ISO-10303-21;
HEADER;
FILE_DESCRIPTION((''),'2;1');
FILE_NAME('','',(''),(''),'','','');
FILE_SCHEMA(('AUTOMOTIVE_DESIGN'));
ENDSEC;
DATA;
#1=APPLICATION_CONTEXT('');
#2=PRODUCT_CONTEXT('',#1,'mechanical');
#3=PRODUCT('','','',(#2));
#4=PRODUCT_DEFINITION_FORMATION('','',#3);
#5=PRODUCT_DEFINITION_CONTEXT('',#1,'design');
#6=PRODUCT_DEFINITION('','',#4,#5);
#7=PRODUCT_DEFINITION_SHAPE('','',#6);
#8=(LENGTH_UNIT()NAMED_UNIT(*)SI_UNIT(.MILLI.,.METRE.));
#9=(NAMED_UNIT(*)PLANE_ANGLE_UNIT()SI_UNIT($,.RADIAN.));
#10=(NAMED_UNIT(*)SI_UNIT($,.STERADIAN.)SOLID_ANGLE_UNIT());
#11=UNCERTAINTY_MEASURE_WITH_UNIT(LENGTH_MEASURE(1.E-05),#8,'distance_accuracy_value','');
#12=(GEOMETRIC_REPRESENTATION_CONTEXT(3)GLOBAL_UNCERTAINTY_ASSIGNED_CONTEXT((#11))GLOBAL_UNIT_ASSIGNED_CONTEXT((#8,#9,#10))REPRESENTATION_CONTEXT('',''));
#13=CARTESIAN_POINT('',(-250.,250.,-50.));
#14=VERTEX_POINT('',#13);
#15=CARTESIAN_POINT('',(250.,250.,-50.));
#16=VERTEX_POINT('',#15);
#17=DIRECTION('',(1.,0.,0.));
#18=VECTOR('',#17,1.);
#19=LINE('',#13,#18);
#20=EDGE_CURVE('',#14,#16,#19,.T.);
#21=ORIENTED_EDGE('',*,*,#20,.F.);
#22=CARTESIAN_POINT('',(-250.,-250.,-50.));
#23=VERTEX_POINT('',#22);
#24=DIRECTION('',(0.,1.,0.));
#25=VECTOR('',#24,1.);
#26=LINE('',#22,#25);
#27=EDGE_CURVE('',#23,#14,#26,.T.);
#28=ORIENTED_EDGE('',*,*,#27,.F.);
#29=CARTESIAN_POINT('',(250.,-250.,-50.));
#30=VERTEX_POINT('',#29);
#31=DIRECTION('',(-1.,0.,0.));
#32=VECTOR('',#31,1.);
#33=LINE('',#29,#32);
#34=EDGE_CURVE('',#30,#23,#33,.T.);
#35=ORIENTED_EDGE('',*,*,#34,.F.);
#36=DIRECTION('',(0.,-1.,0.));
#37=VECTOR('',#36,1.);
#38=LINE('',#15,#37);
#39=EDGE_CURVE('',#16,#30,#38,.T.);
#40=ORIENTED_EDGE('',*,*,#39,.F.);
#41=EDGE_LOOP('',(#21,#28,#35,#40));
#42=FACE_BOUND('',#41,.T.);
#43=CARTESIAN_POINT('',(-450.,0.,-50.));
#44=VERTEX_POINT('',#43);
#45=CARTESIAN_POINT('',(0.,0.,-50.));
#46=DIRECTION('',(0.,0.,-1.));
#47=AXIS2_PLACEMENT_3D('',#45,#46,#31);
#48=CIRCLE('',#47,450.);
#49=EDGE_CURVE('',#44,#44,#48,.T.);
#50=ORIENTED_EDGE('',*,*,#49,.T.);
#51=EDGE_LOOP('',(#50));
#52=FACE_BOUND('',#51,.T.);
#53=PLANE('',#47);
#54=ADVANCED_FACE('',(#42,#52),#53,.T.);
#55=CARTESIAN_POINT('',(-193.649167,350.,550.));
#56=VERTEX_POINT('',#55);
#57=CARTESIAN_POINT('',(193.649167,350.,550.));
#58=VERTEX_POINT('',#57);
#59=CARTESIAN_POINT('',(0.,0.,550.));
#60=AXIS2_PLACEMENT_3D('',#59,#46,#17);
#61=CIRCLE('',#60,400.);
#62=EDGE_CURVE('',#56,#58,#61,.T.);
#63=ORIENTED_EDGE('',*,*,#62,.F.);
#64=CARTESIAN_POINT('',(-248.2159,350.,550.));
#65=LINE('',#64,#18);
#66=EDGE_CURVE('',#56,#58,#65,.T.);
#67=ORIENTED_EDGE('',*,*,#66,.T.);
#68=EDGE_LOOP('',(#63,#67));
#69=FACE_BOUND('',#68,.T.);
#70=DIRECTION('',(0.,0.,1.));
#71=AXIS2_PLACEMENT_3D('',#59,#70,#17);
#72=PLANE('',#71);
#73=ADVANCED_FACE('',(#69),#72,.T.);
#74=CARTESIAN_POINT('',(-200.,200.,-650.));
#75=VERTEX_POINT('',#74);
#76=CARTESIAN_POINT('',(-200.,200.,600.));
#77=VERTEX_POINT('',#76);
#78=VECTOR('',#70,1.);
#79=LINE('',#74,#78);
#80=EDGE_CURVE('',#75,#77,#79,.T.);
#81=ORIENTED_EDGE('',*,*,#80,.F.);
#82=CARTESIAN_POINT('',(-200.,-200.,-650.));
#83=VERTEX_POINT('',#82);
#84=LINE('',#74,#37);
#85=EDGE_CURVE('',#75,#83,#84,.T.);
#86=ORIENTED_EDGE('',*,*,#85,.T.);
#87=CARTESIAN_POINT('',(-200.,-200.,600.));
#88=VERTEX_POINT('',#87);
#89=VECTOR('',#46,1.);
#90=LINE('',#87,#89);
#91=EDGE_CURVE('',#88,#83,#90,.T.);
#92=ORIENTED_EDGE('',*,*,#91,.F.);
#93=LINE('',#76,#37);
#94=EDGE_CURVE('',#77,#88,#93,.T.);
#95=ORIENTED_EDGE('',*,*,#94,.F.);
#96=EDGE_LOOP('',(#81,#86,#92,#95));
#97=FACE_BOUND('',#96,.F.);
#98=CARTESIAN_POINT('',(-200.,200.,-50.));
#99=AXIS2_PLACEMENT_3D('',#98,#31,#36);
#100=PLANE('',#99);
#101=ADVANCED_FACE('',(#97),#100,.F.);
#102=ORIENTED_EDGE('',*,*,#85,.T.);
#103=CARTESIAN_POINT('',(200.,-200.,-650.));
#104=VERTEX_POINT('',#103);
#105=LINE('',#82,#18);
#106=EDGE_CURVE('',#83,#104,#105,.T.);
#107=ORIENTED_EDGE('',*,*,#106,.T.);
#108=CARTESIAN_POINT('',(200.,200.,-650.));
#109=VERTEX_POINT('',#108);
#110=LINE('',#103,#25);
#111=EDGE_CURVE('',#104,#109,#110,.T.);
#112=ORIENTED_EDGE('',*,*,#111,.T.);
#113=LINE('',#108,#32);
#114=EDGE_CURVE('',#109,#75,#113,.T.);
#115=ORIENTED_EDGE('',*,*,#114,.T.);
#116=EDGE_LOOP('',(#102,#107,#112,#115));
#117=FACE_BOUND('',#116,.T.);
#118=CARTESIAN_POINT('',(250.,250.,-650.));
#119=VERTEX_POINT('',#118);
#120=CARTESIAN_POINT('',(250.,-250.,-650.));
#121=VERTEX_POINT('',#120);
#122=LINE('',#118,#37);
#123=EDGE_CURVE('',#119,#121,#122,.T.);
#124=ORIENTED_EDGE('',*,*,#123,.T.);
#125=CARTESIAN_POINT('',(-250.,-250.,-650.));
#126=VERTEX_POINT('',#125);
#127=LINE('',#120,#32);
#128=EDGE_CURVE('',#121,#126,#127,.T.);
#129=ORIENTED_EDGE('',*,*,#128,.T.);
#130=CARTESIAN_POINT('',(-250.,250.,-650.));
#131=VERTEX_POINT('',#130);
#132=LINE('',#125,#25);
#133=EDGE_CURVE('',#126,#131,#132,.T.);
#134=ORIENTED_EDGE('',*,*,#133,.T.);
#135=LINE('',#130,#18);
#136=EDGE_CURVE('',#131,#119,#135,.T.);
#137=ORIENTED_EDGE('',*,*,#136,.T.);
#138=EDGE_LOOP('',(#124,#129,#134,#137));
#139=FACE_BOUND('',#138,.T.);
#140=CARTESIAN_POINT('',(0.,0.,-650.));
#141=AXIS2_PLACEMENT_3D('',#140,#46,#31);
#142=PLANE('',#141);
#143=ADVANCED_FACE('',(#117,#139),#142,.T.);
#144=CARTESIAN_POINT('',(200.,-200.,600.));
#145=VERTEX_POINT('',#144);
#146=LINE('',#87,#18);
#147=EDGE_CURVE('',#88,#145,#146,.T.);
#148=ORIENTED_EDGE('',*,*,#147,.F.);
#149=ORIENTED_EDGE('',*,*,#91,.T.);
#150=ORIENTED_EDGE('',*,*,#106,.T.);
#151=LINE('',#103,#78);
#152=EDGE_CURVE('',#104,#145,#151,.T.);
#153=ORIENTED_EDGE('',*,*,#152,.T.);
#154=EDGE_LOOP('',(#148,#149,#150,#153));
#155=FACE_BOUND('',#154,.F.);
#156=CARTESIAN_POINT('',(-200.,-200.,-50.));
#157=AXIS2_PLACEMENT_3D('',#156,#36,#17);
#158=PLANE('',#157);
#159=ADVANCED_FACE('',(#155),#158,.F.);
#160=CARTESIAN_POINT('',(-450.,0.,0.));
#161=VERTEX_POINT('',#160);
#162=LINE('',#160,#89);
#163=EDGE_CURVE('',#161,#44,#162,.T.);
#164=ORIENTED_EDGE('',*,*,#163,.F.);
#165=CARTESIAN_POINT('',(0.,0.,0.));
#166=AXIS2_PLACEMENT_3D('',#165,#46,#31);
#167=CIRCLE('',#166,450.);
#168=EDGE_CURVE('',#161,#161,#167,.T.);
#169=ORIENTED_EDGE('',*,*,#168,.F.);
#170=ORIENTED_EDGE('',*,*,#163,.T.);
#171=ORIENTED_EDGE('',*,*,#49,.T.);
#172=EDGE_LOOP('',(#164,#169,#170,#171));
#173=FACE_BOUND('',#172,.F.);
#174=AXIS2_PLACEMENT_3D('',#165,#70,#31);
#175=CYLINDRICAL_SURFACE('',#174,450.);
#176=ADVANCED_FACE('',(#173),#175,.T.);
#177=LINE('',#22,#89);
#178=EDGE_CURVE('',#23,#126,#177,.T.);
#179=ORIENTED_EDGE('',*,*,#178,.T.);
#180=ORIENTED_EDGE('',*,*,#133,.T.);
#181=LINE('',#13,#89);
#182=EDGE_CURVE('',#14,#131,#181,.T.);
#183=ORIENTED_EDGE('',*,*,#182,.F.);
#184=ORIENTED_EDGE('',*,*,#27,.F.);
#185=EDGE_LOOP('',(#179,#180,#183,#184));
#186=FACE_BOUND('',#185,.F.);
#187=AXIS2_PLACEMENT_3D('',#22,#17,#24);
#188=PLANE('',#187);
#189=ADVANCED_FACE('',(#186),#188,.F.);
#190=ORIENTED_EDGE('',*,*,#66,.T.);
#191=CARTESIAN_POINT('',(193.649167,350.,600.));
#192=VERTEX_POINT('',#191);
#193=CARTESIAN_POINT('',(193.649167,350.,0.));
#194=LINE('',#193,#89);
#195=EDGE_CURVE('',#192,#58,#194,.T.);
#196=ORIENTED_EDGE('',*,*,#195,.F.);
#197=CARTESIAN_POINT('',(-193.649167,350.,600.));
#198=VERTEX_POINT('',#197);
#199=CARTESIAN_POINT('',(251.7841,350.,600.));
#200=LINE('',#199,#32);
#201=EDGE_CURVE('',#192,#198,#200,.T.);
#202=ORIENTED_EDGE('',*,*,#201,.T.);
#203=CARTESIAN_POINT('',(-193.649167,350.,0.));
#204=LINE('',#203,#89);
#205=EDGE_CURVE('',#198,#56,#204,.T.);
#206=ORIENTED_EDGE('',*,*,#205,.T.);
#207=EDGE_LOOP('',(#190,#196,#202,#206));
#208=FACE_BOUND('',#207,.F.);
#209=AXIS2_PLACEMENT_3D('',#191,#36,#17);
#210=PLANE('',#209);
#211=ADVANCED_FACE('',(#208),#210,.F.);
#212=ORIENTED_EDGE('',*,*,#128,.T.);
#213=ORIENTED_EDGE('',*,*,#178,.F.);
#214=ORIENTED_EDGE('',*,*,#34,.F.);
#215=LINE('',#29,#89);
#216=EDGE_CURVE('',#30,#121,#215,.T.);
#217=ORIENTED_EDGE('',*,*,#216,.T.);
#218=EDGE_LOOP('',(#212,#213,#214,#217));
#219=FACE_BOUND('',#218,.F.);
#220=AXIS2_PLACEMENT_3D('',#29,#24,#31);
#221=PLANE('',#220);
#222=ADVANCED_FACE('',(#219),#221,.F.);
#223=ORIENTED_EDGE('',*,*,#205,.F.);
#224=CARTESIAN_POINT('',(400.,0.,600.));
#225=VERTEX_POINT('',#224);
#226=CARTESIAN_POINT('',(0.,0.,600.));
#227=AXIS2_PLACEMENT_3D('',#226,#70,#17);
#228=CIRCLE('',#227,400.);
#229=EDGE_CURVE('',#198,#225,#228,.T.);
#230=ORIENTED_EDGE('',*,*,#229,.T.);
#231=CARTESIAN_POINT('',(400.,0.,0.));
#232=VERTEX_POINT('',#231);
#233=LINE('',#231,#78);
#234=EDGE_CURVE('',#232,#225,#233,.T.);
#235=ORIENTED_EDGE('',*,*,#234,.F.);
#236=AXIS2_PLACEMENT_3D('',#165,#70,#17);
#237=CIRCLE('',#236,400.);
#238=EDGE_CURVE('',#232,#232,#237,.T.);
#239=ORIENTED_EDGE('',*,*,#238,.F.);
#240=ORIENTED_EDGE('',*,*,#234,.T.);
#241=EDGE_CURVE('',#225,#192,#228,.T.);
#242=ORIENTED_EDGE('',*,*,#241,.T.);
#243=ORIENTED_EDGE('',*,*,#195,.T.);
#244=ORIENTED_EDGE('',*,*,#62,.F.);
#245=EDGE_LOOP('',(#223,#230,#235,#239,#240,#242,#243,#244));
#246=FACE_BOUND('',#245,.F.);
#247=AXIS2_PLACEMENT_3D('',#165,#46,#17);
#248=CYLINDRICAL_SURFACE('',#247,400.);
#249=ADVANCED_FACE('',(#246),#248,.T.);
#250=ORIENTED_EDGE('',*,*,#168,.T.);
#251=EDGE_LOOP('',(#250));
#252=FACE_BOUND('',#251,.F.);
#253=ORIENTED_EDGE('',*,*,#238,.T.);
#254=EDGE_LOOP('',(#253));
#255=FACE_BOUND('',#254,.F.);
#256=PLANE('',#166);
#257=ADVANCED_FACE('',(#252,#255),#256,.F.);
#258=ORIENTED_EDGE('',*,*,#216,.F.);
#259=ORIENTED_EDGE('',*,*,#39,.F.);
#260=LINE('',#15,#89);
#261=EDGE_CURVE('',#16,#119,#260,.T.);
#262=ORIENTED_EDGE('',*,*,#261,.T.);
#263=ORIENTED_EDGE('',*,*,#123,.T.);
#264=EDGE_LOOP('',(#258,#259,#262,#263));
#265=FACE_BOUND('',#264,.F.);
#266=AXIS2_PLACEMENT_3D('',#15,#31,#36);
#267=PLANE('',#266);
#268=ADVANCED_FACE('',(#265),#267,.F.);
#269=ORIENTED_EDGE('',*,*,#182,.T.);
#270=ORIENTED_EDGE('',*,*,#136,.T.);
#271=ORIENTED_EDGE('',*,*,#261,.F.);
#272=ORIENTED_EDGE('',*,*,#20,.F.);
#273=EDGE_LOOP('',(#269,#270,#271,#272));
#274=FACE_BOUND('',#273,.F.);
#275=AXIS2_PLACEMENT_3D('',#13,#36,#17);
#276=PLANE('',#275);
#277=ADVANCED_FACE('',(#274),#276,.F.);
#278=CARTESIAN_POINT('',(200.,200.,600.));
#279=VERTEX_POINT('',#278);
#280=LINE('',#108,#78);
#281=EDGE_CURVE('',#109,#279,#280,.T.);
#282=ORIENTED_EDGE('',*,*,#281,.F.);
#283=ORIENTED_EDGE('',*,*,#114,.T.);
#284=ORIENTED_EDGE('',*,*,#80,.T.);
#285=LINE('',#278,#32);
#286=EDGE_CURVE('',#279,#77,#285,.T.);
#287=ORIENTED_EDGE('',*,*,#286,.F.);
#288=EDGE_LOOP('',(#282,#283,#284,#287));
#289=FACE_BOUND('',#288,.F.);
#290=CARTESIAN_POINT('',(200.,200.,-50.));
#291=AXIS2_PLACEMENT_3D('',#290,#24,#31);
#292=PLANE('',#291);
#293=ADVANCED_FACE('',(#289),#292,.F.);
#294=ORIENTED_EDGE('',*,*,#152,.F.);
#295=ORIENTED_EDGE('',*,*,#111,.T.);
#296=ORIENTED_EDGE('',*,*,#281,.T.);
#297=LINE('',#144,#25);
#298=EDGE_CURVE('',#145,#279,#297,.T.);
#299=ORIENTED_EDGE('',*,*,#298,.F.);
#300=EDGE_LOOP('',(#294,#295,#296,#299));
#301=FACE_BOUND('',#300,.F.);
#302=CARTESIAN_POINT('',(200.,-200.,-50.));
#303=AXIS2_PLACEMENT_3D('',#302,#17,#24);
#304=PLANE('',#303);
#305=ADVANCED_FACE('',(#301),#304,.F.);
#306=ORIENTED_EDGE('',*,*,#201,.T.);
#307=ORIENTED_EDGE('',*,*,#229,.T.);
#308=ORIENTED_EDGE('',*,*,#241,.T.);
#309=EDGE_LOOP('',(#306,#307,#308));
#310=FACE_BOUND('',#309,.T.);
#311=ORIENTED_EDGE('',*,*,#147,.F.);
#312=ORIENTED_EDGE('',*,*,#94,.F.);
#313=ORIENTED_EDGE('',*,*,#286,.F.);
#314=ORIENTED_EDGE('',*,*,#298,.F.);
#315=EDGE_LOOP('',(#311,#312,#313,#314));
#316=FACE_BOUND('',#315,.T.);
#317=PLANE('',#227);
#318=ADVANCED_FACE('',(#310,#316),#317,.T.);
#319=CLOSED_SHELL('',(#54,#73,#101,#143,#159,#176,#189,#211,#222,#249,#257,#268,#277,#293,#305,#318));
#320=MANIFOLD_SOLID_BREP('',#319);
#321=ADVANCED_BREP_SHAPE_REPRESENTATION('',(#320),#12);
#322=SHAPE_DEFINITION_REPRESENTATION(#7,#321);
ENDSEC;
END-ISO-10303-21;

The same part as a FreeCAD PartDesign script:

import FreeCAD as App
import Part
import Sketcher
Q = App.Units.Quantity

doc = App.newDocument("Part")
body = doc.addObject("PartDesign::Body", "Body")

# Sketch on XY plane
sketch1 = body.newObject("Sketcher::SketchObject", "Sketch")
sketch1.AttachmentSupport = (doc.getObject("XY_Plane"), [""])
sketch1.MapMode = "FlatFace"
sketch1.addGeometry([
    Part.Circle(App.Vector(0, 0, 0), App.Vector(0, 0, 1), 400),  # 0
    Part.LineSegment(App.Vector(200, -200, 0), App.Vector(-200, -200, 0)),  # 1
    Part.LineSegment(App.Vector(-200, -200, 0), App.Vector(-200, 200, 0)),  # 2
    Part.LineSegment(App.Vector(-200, 200, 0), App.Vector(200, 200, 0)),  # 3
    Part.LineSegment(App.Vector(200, 200, 0), App.Vector(200, -200, 0)),  # 4
], False)
sketch1.addConstraint([
    Sketcher.Constraint("Coincident", 1, 2, 2, 1),
    Sketcher.Constraint("Coincident", 2, 2, 3, 1),
    Sketcher.Constraint("Coincident", 3, 2, 4, 1),
    Sketcher.Constraint("Coincident", 4, 2, 1, 1),
    Sketcher.Constraint("Horizontal", 1),
    Sketcher.Constraint("Vertical", 2),
    Sketcher.Constraint("Horizontal", 3),
    Sketcher.Constraint("Vertical", 4),
    Sketcher.Constraint("Coincident", 0, 3, -1, 1),
    Sketcher.Constraint("Symmetric", 1, 2, 3, 2, -1, 1),
    Sketcher.Constraint("Equal", 3, 2),
    Sketcher.Constraint("Diameter", 0, Q("800 mm")),
    Sketcher.Constraint("DistanceX", 1, 2, 1, 1, Q("400 mm")),
])
pad1 = body.newObject("PartDesign::Pad", "Pad")
pad1.Profile = sketch1
pad1.Length = 600

# Sketch on XY plane
sketch2 = body.newObject("Sketcher::SketchObject", "Sketch001")
sketch2.AttachmentSupport = (doc.getObject("XY_Plane"), [""])
sketch2.MapMode = "FlatFace"
sketch2.addGeometry([
    Part.Circle(App.Vector(0, 0, 0), App.Vector(0, 0, 1), 450),  # 0
    Part.LineSegment(App.Vector(200, 200, 0), App.Vector(-200, 200, 0)),  # 1
    Part.LineSegment(App.Vector(-200, 200, 0), App.Vector(-200, -200, 0)),  # 2
    Part.LineSegment(App.Vector(-200, -200, 0), App.Vector(200, -200, 0)),  # 3
    Part.LineSegment(App.Vector(200, -200, 0), App.Vector(200, 200, 0)),  # 4
], False)
sketch2.addConstraint([
    Sketcher.Constraint("Coincident", 1, 2, 2, 1),
    Sketcher.Constraint("Coincident", 2, 2, 3, 1),
    Sketcher.Constraint("Coincident", 3, 2, 4, 1),
    Sketcher.Constraint("Coincident", 4, 2, 1, 1),
    Sketcher.Constraint("Horizontal", 1),
    Sketcher.Constraint("Vertical", 2),
    Sketcher.Constraint("Horizontal", 3),
    Sketcher.Constraint("Vertical", 4),
    Sketcher.Constraint("Coincident", 0, 3, -1, 1),
    Sketcher.Constraint("Symmetric", 1, 2, 3, 2, -1, 1),
    Sketcher.Constraint("Equal", 3, 2),
    Sketcher.Constraint("Diameter", 0, Q("900 mm")),
    Sketcher.Constraint("DistanceX", 1, 2, 1, 1, Q("400 mm")),
])
pad2 = body.newObject("PartDesign::Pad", "Pad001")
pad2.Profile = sketch2
pad2.Length = 50
pad2.Reversed = True

# Sketch on XY plane
sketch3 = body.newObject("Sketcher::SketchObject", "Sketch002")
sketch3.AttachmentSupport = (doc.getObject("XY_Plane"), [""])
sketch3.MapMode = "FlatFace"
sketch3.AttachmentOffset = App.Placement(App.Vector(0, 0, 600), App.Rotation())
sketch3.addGeometry([
    Part.LineSegment(App.Vector(251.7841, 350, 0), App.Vector(251.7841, 450, 0)),
    Part.LineSegment(App.Vector(251.7841, 450, 0), App.Vector(-248.2159, 450, 0)),
    Part.LineSegment(App.Vector(-248.2159, 450, 0), App.Vector(-248.2159, 350, 0)),
    Part.LineSegment(App.Vector(-248.2159, 350, 0), App.Vector(251.7841, 350, 0)),
], False)
sketch3.addConstraint([
    Sketcher.Constraint("Coincident", 0, 2, 1, 1),
    Sketcher.Constraint("Coincident", 1, 2, 2, 1),
    Sketcher.Constraint("Coincident", 2, 2, 3, 1),
    Sketcher.Constraint("Coincident", 3, 2, 0, 1),
    Sketcher.Constraint("Vertical", 0),
    Sketcher.Constraint("Horizontal", 1),
    Sketcher.Constraint("Vertical", 2),
    Sketcher.Constraint("Horizontal", 3),
    Sketcher.Constraint("DistanceX", 1, 2, 1, 1, Q("500 mm")),
    Sketcher.Constraint("DistanceY", 0, 1, 0, 2, Q("100 mm")),
    Sketcher.Constraint("DistanceY", -1, 1, 2, 2, Q("350 mm")),
    Sketcher.Constraint("DistanceX", -1, 1, 0, 2, Q("251.784 mm")),
])
pocket1 = body.newObject("PartDesign::Pocket", "Pocket")
pocket1.Profile = sketch3
pocket1.Length = 50

# Sketch on XY plane
sketch4 = body.newObject("Sketcher::SketchObject", "Sketch003")
sketch4.AttachmentSupport = (doc.getObject("XY_Plane"), [""])
sketch4.MapMode = "FlatFace"
sketch4.AttachmentOffset = App.Placement(App.Vector(0, 0, -50), App.Rotation())
sketch4.addGeometry([
    Part.LineSegment(App.Vector(250, 250, 0), App.Vector(250, -250, 0)),  # 0
    Part.LineSegment(App.Vector(250, -250, 0), App.Vector(-250, -250, 0)),  # 1
    Part.LineSegment(App.Vector(-250, -250, 0), App.Vector(-250, 250, 0)),  # 2
    Part.LineSegment(App.Vector(-250, 250, 0), App.Vector(250, 250, 0)),  # 3
    Part.LineSegment(App.Vector(-200, 200, 0), App.Vector(-200, -200, 0)),  # 4
    Part.LineSegment(App.Vector(-200, -200, 0), App.Vector(200, -200, 0)),  # 5
    Part.LineSegment(App.Vector(200, -200, 0), App.Vector(200, 200, 0)),  # 6
    Part.LineSegment(App.Vector(200, 200, 0), App.Vector(-200, 200, 0)),  # 7
], False)
sketch4.addConstraint([
    Sketcher.Constraint("Coincident", 0, 2, 1, 1),
    Sketcher.Constraint("Coincident", 1, 2, 2, 1),
    Sketcher.Constraint("Coincident", 2, 2, 3, 1),
    Sketcher.Constraint("Coincident", 3, 2, 0, 1),
    Sketcher.Constraint("Coincident", 4, 2, 5, 1),
    Sketcher.Constraint("Coincident", 5, 2, 6, 1),
    Sketcher.Constraint("Coincident", 6, 2, 7, 1),
    Sketcher.Constraint("Coincident", 7, 2, 4, 1),
    Sketcher.Constraint("Vertical", 0),
    Sketcher.Constraint("Horizontal", 1),
    Sketcher.Constraint("Vertical", 2),
    Sketcher.Constraint("Horizontal", 3),
    Sketcher.Constraint("Vertical", 4),
    Sketcher.Constraint("Horizontal", 5),
    Sketcher.Constraint("Vertical", 6),
    Sketcher.Constraint("Horizontal", 7),
    Sketcher.Constraint("Symmetric", 0, 2, 2, 2, -1, 1),
    Sketcher.Constraint("Symmetric", 4, 2, 6, 2, -1, 1),
    Sketcher.Constraint("Equal", 3, 0),
    Sketcher.Constraint("Equal", 7, 4),
    Sketcher.Constraint("DistanceX", 1, 2, 4, 2, Q("50 mm")),
    Sketcher.Constraint("DistanceX", 1, 2, 1, 1, Q("500 mm")),
])
pad3 = body.newObject("PartDesign::Pad", "Pad002")
pad3.Profile = sketch4
pad3.Length = 600
pad3.Reversed = True

doc.recompute()
